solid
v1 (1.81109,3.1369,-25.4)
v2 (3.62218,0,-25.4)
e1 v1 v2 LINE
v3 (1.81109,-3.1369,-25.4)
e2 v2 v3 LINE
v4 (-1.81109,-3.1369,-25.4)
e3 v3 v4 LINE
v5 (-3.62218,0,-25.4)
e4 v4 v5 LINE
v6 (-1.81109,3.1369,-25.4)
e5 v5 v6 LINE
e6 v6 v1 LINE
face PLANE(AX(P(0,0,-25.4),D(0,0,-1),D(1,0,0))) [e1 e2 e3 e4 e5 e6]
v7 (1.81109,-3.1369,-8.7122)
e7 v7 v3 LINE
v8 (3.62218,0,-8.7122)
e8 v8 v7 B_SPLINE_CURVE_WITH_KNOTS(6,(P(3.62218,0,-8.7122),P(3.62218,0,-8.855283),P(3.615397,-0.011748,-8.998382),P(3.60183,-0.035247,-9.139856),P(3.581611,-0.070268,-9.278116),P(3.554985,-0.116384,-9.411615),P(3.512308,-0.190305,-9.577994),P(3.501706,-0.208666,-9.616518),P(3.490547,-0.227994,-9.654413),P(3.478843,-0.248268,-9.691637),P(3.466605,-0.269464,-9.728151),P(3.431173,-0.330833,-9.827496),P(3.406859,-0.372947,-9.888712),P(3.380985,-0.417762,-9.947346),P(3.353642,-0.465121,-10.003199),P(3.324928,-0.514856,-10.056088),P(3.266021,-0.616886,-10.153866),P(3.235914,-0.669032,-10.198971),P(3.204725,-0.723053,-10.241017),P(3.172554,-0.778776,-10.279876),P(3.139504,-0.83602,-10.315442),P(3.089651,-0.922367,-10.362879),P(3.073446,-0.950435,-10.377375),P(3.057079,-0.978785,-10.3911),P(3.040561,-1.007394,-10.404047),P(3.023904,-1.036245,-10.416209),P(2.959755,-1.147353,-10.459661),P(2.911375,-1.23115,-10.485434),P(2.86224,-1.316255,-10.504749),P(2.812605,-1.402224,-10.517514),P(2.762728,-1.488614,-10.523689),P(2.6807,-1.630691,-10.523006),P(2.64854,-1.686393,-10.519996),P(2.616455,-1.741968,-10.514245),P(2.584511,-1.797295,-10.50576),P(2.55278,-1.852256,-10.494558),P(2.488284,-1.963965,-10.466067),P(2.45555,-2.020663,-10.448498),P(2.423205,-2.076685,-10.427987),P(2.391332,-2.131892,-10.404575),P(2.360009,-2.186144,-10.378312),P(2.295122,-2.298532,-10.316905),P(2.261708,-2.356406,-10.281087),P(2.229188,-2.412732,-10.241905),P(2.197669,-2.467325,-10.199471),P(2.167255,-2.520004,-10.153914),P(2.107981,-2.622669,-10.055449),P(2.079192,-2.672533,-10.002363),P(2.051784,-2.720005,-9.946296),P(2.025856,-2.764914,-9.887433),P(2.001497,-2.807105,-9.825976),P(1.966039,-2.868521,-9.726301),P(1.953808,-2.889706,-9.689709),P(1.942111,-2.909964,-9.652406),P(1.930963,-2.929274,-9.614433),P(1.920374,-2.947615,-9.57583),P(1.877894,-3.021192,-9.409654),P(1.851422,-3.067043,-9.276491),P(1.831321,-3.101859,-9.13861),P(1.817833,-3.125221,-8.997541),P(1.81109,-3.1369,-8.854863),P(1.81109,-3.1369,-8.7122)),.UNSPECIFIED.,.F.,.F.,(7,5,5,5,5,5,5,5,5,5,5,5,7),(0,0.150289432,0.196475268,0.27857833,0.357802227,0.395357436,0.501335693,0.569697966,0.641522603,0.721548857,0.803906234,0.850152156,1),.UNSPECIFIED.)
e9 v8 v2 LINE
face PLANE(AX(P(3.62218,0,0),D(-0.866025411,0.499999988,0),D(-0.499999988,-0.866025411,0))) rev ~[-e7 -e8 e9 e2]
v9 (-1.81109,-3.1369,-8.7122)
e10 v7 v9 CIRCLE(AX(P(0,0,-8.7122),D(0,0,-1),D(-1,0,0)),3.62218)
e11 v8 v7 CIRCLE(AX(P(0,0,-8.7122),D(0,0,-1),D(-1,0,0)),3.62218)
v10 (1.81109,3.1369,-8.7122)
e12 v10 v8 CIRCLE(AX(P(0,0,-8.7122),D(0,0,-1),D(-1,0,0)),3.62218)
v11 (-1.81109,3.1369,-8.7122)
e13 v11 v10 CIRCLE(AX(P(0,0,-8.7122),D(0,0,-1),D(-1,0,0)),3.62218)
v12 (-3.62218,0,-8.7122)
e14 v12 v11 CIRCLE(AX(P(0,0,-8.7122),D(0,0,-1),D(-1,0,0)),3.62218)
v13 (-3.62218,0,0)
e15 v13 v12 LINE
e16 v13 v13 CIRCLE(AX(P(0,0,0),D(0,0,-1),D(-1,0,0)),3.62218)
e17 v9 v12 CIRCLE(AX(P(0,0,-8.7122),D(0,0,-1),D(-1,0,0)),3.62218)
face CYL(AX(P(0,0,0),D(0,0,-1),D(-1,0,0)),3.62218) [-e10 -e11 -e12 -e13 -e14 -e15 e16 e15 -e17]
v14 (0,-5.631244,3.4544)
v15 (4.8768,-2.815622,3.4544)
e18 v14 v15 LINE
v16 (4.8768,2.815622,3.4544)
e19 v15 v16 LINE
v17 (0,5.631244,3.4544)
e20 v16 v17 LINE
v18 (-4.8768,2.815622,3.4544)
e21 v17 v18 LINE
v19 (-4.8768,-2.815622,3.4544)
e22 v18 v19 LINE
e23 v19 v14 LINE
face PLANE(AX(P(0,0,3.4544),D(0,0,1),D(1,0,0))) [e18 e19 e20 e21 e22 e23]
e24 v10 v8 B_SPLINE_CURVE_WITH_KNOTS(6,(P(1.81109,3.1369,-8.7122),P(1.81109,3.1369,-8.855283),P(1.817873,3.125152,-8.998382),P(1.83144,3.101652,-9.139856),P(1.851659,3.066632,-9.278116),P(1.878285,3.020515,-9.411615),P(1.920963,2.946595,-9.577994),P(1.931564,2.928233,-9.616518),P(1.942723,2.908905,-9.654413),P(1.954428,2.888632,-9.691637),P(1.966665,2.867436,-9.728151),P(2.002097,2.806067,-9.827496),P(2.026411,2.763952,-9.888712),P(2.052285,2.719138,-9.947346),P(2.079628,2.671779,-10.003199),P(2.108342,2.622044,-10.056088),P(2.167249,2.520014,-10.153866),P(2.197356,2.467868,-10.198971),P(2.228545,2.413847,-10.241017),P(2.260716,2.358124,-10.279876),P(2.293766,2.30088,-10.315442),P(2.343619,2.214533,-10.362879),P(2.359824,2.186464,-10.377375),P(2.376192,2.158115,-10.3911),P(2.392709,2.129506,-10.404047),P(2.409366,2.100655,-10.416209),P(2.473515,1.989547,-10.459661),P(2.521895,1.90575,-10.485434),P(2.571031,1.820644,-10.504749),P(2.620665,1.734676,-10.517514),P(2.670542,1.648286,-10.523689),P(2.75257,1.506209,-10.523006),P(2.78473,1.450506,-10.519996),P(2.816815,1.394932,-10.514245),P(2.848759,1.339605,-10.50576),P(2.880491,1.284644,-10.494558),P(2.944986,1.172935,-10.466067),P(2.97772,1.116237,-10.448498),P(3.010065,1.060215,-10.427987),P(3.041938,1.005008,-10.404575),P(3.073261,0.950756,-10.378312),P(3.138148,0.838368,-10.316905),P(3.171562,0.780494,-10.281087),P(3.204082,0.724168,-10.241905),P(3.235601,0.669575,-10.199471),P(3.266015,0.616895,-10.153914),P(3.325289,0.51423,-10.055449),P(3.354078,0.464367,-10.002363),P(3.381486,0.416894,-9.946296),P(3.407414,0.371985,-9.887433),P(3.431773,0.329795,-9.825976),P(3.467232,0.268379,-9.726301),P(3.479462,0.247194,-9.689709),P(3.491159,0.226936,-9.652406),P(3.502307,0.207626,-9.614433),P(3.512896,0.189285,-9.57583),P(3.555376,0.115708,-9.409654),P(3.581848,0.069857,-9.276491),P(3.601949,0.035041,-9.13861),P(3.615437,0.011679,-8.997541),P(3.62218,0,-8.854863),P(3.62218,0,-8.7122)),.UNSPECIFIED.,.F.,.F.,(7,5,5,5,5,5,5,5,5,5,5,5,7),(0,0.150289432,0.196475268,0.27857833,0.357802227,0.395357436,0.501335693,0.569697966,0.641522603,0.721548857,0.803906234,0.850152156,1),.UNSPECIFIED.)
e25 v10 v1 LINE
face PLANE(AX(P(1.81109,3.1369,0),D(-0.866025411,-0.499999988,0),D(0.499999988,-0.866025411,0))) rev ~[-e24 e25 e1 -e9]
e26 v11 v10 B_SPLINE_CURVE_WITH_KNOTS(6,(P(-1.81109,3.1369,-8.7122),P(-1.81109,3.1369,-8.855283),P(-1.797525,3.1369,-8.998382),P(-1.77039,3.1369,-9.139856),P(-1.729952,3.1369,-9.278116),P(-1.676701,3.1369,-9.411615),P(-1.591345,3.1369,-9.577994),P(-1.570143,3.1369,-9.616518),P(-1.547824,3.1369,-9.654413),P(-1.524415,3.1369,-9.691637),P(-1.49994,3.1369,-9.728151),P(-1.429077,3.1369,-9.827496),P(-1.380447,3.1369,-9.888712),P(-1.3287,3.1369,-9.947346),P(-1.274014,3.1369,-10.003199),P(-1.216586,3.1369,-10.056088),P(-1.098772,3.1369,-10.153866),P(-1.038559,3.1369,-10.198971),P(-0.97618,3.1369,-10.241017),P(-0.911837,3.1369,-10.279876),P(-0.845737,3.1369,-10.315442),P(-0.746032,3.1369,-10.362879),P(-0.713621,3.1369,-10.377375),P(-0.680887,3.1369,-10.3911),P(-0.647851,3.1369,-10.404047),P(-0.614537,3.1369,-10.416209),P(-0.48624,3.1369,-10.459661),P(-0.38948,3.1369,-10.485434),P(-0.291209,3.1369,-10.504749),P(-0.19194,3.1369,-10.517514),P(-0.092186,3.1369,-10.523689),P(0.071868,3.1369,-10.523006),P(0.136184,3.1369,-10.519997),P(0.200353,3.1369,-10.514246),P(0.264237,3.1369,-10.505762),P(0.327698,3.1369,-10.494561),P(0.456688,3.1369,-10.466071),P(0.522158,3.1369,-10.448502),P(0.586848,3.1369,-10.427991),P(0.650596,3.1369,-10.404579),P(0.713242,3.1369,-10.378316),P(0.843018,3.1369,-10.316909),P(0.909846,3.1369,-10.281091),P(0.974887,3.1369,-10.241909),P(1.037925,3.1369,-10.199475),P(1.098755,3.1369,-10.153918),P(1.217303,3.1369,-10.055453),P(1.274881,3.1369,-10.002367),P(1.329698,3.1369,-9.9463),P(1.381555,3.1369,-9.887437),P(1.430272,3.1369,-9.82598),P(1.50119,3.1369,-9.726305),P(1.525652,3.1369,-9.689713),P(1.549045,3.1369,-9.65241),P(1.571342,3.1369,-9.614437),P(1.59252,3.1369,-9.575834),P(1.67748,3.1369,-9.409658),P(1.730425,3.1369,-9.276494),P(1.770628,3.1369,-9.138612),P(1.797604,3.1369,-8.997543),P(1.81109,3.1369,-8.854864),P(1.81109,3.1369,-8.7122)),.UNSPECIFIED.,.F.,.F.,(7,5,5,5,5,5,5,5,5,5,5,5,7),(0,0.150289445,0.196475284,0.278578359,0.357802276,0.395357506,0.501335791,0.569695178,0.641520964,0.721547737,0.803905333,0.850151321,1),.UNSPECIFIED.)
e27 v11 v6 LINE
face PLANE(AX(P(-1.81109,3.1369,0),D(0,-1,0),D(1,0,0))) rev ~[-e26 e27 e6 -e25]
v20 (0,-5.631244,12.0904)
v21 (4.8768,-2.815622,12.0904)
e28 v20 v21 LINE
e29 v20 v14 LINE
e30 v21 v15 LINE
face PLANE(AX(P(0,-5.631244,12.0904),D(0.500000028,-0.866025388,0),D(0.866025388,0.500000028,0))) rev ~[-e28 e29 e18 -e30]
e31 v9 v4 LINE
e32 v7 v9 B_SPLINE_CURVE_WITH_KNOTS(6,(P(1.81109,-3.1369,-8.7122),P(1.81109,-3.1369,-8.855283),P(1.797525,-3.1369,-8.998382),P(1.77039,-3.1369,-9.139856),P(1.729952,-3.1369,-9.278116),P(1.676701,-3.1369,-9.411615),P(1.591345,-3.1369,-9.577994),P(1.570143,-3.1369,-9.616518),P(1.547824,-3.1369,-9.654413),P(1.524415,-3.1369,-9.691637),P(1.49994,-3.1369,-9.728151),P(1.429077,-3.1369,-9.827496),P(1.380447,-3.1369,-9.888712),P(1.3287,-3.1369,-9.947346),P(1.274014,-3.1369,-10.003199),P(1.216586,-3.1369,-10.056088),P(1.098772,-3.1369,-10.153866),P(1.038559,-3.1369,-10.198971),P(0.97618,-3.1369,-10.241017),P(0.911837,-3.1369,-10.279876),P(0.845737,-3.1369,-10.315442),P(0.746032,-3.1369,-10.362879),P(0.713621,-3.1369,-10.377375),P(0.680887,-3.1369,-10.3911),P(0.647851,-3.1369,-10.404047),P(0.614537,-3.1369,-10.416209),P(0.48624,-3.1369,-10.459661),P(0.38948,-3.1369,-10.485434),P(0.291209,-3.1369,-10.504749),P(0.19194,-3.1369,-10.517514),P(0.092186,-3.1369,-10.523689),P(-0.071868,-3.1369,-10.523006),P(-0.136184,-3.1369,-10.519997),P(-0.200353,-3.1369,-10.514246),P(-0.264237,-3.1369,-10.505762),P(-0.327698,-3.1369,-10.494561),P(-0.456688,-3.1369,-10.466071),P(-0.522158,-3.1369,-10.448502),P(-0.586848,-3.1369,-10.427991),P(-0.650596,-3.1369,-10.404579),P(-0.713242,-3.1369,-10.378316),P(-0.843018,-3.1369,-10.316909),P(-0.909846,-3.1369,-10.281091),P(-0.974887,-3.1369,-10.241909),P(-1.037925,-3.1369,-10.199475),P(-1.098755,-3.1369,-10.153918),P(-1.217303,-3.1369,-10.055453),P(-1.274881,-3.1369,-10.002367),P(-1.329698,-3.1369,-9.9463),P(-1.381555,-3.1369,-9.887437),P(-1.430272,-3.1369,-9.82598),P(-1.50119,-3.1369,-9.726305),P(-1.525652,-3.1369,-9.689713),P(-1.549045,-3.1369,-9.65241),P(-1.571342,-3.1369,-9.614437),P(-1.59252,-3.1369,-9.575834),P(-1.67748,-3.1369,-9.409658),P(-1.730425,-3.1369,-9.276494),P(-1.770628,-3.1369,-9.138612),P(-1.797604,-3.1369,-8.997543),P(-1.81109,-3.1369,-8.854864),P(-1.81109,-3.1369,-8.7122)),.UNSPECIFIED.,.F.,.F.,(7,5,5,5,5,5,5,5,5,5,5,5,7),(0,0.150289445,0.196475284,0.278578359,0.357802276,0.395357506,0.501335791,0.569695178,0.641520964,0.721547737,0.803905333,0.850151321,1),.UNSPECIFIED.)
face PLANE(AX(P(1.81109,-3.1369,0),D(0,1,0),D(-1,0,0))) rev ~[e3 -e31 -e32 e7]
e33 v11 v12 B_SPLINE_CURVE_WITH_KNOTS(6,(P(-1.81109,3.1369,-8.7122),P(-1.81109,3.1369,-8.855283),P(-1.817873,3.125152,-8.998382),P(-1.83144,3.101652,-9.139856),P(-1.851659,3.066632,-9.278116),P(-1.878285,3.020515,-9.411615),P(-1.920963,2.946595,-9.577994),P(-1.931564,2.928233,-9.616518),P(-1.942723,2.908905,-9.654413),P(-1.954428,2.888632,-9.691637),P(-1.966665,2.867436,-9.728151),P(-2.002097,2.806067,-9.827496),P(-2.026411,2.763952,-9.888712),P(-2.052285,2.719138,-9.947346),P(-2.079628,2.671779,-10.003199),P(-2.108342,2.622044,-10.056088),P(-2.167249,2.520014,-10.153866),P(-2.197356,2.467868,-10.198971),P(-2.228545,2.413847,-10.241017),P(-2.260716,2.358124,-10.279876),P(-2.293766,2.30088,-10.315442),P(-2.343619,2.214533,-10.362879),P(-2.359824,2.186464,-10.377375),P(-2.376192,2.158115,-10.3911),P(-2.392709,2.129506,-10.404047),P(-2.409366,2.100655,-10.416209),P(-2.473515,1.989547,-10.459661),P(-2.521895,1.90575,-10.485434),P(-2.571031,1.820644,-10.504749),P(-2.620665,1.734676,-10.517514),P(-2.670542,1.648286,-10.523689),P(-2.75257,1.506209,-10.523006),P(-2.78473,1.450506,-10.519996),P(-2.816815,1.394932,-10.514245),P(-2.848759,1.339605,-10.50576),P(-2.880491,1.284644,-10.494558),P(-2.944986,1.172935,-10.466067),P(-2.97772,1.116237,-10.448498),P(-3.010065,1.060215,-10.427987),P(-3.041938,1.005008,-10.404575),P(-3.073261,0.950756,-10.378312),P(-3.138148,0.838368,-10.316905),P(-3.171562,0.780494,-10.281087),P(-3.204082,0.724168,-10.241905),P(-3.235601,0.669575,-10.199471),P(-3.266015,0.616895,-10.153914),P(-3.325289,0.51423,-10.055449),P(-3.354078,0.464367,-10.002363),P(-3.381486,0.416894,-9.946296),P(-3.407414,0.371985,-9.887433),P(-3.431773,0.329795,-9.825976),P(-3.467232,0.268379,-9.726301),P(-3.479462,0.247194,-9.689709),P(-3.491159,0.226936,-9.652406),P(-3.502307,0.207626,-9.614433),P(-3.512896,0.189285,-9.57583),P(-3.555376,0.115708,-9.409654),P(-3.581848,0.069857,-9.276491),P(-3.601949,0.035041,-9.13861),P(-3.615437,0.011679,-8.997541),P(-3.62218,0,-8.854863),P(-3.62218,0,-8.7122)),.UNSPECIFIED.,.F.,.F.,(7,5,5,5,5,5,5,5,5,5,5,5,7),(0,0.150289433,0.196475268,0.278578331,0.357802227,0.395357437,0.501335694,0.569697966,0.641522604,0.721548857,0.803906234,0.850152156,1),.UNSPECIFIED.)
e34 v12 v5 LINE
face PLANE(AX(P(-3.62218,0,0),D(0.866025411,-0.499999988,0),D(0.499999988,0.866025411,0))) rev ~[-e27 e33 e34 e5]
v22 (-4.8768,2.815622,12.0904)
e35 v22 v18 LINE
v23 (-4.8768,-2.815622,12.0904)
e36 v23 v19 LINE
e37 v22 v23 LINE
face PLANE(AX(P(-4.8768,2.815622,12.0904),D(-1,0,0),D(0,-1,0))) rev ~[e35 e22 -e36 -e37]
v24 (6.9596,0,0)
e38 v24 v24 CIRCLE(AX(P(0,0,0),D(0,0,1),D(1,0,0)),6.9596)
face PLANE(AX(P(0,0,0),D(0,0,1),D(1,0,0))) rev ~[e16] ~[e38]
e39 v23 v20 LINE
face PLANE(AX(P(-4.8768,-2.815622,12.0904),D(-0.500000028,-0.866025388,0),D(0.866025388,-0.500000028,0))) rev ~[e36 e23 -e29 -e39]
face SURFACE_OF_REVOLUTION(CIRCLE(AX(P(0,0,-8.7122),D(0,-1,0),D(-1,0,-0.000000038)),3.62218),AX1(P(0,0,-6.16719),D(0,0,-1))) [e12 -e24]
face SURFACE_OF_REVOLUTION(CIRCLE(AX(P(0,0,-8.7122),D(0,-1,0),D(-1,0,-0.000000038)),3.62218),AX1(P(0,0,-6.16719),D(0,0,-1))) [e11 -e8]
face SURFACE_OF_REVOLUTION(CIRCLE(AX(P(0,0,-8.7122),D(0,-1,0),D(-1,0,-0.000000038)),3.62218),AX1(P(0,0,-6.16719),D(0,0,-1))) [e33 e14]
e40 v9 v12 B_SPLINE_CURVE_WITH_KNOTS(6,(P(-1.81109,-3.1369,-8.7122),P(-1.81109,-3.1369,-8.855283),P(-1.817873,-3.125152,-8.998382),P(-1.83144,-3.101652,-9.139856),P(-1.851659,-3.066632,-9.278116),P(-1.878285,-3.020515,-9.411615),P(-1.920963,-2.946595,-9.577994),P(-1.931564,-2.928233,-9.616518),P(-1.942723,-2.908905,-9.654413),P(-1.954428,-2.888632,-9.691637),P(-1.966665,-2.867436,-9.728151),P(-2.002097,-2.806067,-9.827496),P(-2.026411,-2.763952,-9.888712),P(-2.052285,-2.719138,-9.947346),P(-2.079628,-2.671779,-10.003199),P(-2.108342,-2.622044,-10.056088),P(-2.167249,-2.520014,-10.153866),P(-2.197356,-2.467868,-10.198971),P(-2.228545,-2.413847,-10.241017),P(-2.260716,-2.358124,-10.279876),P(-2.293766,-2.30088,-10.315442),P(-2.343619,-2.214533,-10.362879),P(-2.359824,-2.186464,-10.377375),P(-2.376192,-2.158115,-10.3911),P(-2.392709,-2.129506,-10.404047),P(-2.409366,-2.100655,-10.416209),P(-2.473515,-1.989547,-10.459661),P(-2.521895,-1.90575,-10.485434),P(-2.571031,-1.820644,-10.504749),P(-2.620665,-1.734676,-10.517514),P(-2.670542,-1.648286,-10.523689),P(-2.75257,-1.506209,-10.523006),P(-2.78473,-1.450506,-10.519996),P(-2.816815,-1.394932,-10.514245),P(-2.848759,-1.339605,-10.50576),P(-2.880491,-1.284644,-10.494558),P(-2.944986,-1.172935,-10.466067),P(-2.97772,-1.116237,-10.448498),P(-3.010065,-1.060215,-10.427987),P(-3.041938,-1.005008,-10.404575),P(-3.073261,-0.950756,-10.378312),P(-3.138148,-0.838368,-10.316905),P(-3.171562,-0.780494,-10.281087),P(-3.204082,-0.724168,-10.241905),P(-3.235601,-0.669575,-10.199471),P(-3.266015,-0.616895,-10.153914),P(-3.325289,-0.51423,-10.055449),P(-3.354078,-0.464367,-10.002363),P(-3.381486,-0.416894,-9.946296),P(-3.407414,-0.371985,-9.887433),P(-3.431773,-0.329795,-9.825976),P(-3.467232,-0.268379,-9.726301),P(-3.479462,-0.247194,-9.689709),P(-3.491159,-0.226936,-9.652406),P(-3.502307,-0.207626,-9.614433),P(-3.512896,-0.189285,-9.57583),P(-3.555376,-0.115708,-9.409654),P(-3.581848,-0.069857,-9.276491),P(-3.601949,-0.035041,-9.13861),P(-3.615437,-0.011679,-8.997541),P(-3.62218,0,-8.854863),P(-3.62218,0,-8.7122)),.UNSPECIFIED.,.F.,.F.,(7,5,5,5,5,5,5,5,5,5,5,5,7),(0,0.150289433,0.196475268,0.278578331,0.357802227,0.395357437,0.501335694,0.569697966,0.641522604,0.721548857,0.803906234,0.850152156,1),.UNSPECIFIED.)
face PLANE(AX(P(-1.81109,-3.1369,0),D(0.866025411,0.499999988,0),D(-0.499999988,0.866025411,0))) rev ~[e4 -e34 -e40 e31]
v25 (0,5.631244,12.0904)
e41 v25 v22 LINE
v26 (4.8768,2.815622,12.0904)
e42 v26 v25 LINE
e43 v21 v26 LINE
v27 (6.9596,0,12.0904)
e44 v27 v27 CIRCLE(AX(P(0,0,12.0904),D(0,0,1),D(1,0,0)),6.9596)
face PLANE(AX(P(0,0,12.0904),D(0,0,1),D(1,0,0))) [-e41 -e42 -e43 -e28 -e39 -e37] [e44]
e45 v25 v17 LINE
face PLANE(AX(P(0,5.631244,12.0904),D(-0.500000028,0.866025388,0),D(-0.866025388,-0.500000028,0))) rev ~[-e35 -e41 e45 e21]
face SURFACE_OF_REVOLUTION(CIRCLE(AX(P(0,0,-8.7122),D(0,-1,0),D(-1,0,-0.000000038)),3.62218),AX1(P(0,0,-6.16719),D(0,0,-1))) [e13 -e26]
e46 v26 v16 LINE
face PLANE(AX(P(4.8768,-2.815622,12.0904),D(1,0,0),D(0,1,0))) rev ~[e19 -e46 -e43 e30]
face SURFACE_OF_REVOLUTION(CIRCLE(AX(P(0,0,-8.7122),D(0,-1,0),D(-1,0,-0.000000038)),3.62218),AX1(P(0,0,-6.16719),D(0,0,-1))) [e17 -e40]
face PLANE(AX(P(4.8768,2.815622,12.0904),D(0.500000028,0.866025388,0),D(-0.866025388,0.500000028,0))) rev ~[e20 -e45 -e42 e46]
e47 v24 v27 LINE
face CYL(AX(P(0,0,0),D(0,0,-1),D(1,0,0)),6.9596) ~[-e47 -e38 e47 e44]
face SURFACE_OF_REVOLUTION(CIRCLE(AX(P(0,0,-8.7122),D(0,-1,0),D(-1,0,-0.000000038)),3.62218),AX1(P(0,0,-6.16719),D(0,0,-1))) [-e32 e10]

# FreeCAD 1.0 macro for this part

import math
import FreeCAD as App
import Part
import Sketcher
Q = App.Units.Quantity


def add_polygon(sketch, points):
    """Adds a closed chain of lines whose ends are joined by coincident constraints."""
    first, n = sketch.GeometryCount, len(points)
    for a, b in zip(points, points[1:] + points[:1]):
        sketch.addGeometry(Part.LineSegment(App.Vector(*a, 0), App.Vector(*b, 0)), False)
    for i in range(n):
        sketch.addConstraint(Sketcher.Constraint("Coincident", first + i, 2, first + (i + 1) % n, 1))

doc = App.newDocument("Part")
body = doc.addObject("PartDesign::Body", "Body")

sketch1 = body.newObject("Sketcher::SketchObject", "Sketch")
sketch1.AttachmentSupport = (doc.getObject("XY_Plane"), [""])
sketch1.MapMode = "FlatFace"
sketch1.addGeometry(Part.Circle(App.Vector(0, 0, 0), App.Vector(0, 0, 1), 7), False)
sketch1.addConstraint(Sketcher.Constraint("Coincident", 0, 3, -1, 1))
sketch1.addConstraint(Sketcher.Constraint("Diameter", 0, Q("0.548 in")))
pad1 = body.newObject("PartDesign::Pad", "Pad")
pad1.Profile = sketch1
pad1.Length = Q("0.476 in")

sketch2 = body.newObject("Sketcher::SketchObject", "Sketch001")
sketch2.AttachmentSupport = (doc.getObject("XY_Plane"), [""])
sketch2.MapMode = "FlatFace"
sketch2.AttachmentOffset = App.Placement(App.Vector(0, 0, 0.476 * 25.4), App.Rotation())
add_polygon(sketch2, [(5, -3), (5, 3), (0, 6), (-5, 3), (-5, -3), (0, -6)])
sketch2.addConstraint(Sketcher.Constraint("Vertical", 0))
sketch2.addConstraint(Sketcher.Constraint("Vertical", 3))
sketch2.addConstraint(Sketcher.Constraint("Symmetric", 0, 2, 3, 2, -1, 1))
sketch2.addConstraint(Sketcher.Constraint("Symmetric", 1, 2, 4, 2, -1, 1))
sketch2.addConstraint(Sketcher.Constraint("PointOnObject", 1, 2, -2))
sketch2.addConstraint(Sketcher.Constraint("Parallel", 2, 5))
sketch2.addConstraint(Sketcher.Constraint("Horizontal", 0, 2, 2, 2))
sketch2.addConstraint(Sketcher.Constraint("Angle", 1, Q("149.999998 deg")))
sketch2.addConstraint(Sketcher.Constraint("DistanceX", -1, 1, 0, 2, Q("0.192 in")))
sketch2.addConstraint(Sketcher.Constraint("DistanceY", 0, 1, 0, 2, Q("5.631244 mm")))
pocket1 = body.newObject("PartDesign::Pocket", "Pocket")
pocket1.Profile = sketch2
pocket1.Length = Q("0.34 in")

sketch3 = body.newObject("Sketcher::SketchObject", "Sketch002")
sketch3.AttachmentSupport = (doc.getObject("XY_Plane"), [""])
sketch3.MapMode = "FlatFace"
add_polygon(sketch3, [(-1.8, 3.1), (1.8, 3.1), (3.6, 0), (1.8, -3.1), (-1.8, -3.1), (-3.6, 0)])
sketch3.addConstraint(Sketcher.Constraint("Horizontal", 0))
sketch3.addConstraint(Sketcher.Constraint("Horizontal", 3))
sketch3.addConstraint(Sketcher.Constraint("Symmetric", 0, 2, 3, 2, -1, 1))
sketch3.addConstraint(Sketcher.Constraint("Symmetric", 1, 2, 4, 2, -1, 1))
sketch3.addConstraint(Sketcher.Constraint("PointOnObject", 1, 2, -1))
sketch3.addConstraint(Sketcher.Constraint("Parallel", 2, 5))
sketch3.addConstraint(Sketcher.Constraint("Vertical", 0, 2, 2, 2))
sketch3.addConstraint(Sketcher.Constraint("Angle", 1, Q("-60.000001 deg")))
sketch3.addConstraint(Sketcher.Constraint("DistanceY", 2, 2, 0, 2, Q("0.247 in")))
sketch3.addConstraint(Sketcher.Constraint("DistanceX", 0, 1, 0, 2, Q("3.62218 mm")))
pad2 = body.newObject("PartDesign::Pad", "Pad001")
pad2.Profile = sketch3
pad2.Length = Q("1 in")
pad2.Reversed = True

sketch4 = body.newObject("Sketcher::SketchObject", "Sketch003")
sketch4.AttachmentSupport = (doc.getObject("XZ_Plane"), [""])
sketch4.MapMode = "FlatFace"
sketch4.addGeometry(Part.LineSegment(App.Vector(0, 0, 0), App.Vector(-3.6, 0, 0)), False)
sketch4.addGeometry(Part.LineSegment(App.Vector(-3.6, 0, 0), App.Vector(-3.6, -8.7, 0)), False)
sketch4.addGeometry(Part.ArcOfCircle(Part.Circle(App.Vector(0, -8.7, 0), App.Vector(0, 0, 1), 3.6), math.radians(-180), math.radians(-90)), False)
sketch4.addGeometry(Part.LineSegment(App.Vector(0, -12.3, 0), App.Vector(0, 0, 0)), False)
sketch4.addConstraint(Sketcher.Constraint("Coincident", 0, 2, 1, 1))
sketch4.addConstraint(Sketcher.Constraint("Tangent", 1, 2, 2, 1))
sketch4.addConstraint(Sketcher.Constraint("Coincident", 2, 2, 3, 1))
sketch4.addConstraint(Sketcher.Constraint("Coincident", 3, 2, 0, 1))
sketch4.addConstraint(Sketcher.Constraint("Horizontal", 0))
sketch4.addConstraint(Sketcher.Constraint("Vertical", 1))
sketch4.addConstraint(Sketcher.Constraint("Vertical", 3))
sketch4.addConstraint(Sketcher.Constraint("Coincident", 3, 2, -1, 1))
sketch4.addConstraint(Sketcher.Constraint("PointOnObject", 2, 3, -2))
sketch4.addConstraint(Sketcher.Constraint("DistanceY", 1, 2, 1, 1, Q("0.343 in")))
sketch4.addConstraint(Sketcher.Constraint("Radius", 2, Q("3.62218 mm")))
revolution = body.newObject("PartDesign::Revolution", "Revolution")
revolution.Profile = sketch4
revolution.ReferenceAxis = (sketch4, ["V_Axis"])
revolution.Angle = 360

doc.recompute()
